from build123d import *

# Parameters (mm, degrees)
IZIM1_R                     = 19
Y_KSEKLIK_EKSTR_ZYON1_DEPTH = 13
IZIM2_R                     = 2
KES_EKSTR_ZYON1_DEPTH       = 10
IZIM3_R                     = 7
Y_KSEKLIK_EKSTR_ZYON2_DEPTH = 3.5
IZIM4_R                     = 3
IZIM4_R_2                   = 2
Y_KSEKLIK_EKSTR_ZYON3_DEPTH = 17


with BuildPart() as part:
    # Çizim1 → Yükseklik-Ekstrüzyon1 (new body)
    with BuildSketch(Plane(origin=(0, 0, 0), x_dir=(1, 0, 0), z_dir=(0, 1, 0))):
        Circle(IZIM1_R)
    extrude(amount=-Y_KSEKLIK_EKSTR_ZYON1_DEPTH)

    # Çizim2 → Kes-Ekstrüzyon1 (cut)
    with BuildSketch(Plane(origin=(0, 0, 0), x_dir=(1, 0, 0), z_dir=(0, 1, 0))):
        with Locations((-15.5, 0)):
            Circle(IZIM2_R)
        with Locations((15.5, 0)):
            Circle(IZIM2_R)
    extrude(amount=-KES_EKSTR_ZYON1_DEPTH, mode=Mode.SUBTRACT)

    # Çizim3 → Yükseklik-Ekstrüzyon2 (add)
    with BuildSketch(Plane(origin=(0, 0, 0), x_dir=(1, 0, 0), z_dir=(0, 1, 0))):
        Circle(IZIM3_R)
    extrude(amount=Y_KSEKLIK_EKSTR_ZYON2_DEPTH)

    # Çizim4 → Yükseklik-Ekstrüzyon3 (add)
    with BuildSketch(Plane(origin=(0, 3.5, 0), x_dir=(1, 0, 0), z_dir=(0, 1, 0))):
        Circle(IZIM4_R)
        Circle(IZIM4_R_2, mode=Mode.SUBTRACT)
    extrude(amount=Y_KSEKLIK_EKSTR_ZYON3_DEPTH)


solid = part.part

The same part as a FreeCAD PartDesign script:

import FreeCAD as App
import Part
import Sketcher

doc = App.newDocument("Part")
body = doc.addObject("PartDesign::Body", "Body")

# Sketch on XZ plane
sketch1 = body.newObject("Sketcher::SketchObject", "Sketch")
sketch1.AttachmentSupport = (doc.getObject("XZ_Plane"), [""])
sketch1.MapMode = "FlatFace"
sketch1.addGeometry(Part.Circle(App.Vector(0, 0, 0), App.Vector(0, 0, 1), 19), False)
sketch1.addConstraint(Sketcher.Constraint("Coincident", 0, 3, -1, 1))
sketch1.addConstraint(Sketcher.Constraint("Diameter", 0, 38.0))
pad1 = body.newObject("PartDesign::Pad", "Pad")
pad1.Profile = sketch1
pad1.Length = 13

# Sketch on XZ plane
sketch2 = body.newObject("Sketcher::SketchObject", "Sketch001")
sketch2.AttachmentSupport = (doc.getObject("XZ_Plane"), [""])
sketch2.MapMode = "FlatFace"
sketch2.addGeometry(Part.Circle(App.Vector(-15.5, 0, 0), App.Vector(0, 0, 1), 2), False)
sketch2.addGeometry(Part.Circle(App.Vector(15.5, 0, 0), App.Vector(0, 0, 1), 2), False)
sketch2.addConstraint(Sketcher.Constraint("Equal", 0, 1))
sketch2.addConstraint(Sketcher.Constraint("Symmetric", 0, 3, 1, 3, -1, 1))
sketch2.addConstraint(Sketcher.Constraint("PointOnObject", 0, 3, -1))
sketch2.addConstraint(Sketcher.Constraint("Diameter", 0, 4.0))
sketch2.addConstraint(Sketcher.Constraint("DistanceX", 0, 3, 1, 3, 31.0))
pocket1 = body.newObject("PartDesign::Pocket", "Pocket")
pocket1.Profile = sketch2
pocket1.Length = 10
pocket1.Reversed = True

# Sketch on XZ plane
sketch3 = body.newObject("Sketcher::SketchObject", "Sketch002")
sketch3.AttachmentSupport = (doc.getObject("XZ_Plane"), [""])
sketch3.MapMode = "FlatFace"
sketch3.addGeometry(Part.Circle(App.Vector(0, 0, 0), App.Vector(0, 0, 1), 7), False)
sketch3.addConstraint(Sketcher.Constraint("Coincident", 0, 3, -1, 1))
sketch3.addConstraint(Sketcher.Constraint("Diameter", 0, 14.0))
pad2 = body.newObject("PartDesign::Pad", "Pad001")
pad2.Profile = sketch3
pad2.Length = 3.5
pad2.Reversed = True

# Sketch on XZ plane
sketch4 = body.newObject("Sketcher::SketchObject", "Sketch003")
sketch4.AttachmentSupport = (doc.getObject("XZ_Plane"), [""])
sketch4.MapMode = "FlatFace"
sketch4.AttachmentOffset = App.Placement(App.Vector(0, 0, -3.5), App.Rotation())
sketch4.addGeometry(Part.Circle(App.Vector(0, 0, 0), App.Vector(0, 0, 1), 3), False)
sketch4.addGeometry(Part.Circle(App.Vector(0, 0, 0), App.Vector(0, 0, 1), 2), False)
sketch4.addConstraint(Sketcher.Constraint("Coincident", 0, 3, -1, 1))
sketch4.addConstraint(Sketcher.Constraint("Coincident", 1, 3, -1, 1))
sketch4.addConstraint(Sketcher.Constraint("Diameter", 0, 6.0))
sketch4.addConstraint(Sketcher.Constraint("Diameter", 1, 4.0))
pad3 = body.newObject("PartDesign::Pad", "Pad002")
pad3.Profile = sketch4
pad3.Length = 17
pad3.Reversed = True

doc.recompute()
